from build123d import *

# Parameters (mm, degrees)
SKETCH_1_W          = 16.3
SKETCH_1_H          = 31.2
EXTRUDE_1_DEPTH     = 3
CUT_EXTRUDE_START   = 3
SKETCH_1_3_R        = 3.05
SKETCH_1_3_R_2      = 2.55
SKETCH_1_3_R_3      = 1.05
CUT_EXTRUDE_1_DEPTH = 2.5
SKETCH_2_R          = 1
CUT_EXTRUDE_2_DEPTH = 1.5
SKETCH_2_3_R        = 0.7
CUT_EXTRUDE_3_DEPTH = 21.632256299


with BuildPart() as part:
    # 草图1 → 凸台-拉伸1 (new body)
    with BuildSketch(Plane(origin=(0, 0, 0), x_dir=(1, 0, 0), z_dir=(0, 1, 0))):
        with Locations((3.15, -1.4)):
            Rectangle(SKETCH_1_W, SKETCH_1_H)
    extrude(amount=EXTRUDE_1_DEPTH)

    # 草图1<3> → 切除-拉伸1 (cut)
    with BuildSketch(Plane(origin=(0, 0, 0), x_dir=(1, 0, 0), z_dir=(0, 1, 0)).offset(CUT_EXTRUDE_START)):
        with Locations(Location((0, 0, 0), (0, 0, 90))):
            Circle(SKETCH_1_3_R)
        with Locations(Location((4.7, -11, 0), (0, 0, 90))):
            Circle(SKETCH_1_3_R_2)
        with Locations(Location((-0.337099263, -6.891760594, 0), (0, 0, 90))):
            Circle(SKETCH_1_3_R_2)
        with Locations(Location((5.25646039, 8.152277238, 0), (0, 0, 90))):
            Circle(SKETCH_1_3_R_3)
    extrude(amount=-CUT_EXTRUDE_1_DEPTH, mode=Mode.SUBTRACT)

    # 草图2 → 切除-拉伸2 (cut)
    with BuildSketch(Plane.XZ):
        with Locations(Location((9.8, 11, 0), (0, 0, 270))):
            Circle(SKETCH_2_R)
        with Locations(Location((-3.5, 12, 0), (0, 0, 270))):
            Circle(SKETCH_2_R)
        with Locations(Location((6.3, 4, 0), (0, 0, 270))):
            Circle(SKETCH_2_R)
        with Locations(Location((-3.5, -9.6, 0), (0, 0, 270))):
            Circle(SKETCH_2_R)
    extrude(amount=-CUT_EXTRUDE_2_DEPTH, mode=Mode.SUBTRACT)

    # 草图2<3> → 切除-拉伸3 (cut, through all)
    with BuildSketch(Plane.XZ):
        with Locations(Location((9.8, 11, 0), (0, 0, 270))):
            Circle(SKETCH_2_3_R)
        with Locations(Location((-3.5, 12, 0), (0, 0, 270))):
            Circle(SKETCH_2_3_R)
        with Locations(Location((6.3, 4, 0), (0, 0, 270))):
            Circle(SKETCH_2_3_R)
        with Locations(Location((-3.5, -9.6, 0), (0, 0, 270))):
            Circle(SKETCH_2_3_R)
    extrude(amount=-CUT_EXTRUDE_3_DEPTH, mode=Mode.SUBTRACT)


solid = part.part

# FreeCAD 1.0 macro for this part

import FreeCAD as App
import Part
import Sketcher

doc = App.newDocument("Part")
body = doc.addObject("PartDesign::Body", "Body")

# Sketch on XZ plane
sketch1 = body.newObject("Sketcher::SketchObject", "Sketch")
sketch1.AttachmentSupport = (doc.getObject("XZ_Plane"), [""])
sketch1.MapMode = "FlatFace"
sketch1.addGeometry([
    Part.LineSegment(App.Vector(-5, -14, 0), App.Vector(-5, 17, 0)),
    Part.LineSegment(App.Vector(-5, 17, 0), App.Vector(11, 17, 0)),
    Part.LineSegment(App.Vector(11, 17, 0), App.Vector(11, -14, 0)),
    Part.LineSegment(App.Vector(11, -14, 0), App.Vector(-5, -14, 0)),
], False)
sketch1.addConstraint([
    Sketcher.Constraint("Coincident", 0, 2, 1, 1),
    Sketcher.Constraint("Coincident", 1, 2, 2, 1),
    Sketcher.Constraint("Coincident", 2, 2, 3, 1),
    Sketcher.Constraint("Coincident", 3, 2, 0, 1),
    Sketcher.Constraint("Vertical", 0),
    Sketcher.Constraint("Horizontal", 1),
    Sketcher.Constraint("Vertical", 2),
    Sketcher.Constraint("Horizontal", 3),
    Sketcher.Constraint("DistanceX", 1, 1, 1, 2, 16.3),
    Sketcher.Constraint("DistanceY", 0, 1, 0, 2, 31.2),
    Sketcher.Constraint("DistanceX", 0, 2, -1, 1, 5.0),
    Sketcher.Constraint("DistanceY", -1, 1, 0, 2, 17.0),
])
pad1 = body.newObject("PartDesign::Pad", "Pad")
pad1.Profile = sketch1
pad1.Length = 3
pad1.Reversed = True

# Sketch on XZ plane
sketch2 = body.newObject("Sketcher::SketchObject", "Sketch001")
sketch2.AttachmentSupport = (doc.getObject("XZ_Plane"), [""])
sketch2.MapMode = "FlatFace"
sketch2.AttachmentOffset = App.Placement(App.Vector(0, 0, -3), App.Rotation())
sketch2.addGeometry([
    Part.Circle(App.Vector(0, 0, 0), App.Vector(0, 0, 1), 3),
    Part.Circle(App.Vector(4.7, 11, 0), App.Vector(0, 0, 1), 2.5),
    Part.Circle(App.Vector(-0.3, 6.9, 0), App.Vector(0, 0, 1), 2.5),
    Part.Circle(App.Vector(5.3, -8.2, 0), App.Vector(0, 0, 1), 1.1),
], False)
sketch2.addConstraint([
    Sketcher.Constraint("Coincident", 0, 3, -1, 1),
    Sketcher.Constraint("Equal", 1, 2),
    Sketcher.Constraint("Diameter", 0, 6.1),
    Sketcher.Constraint("Diameter", 1, 5.1),
    Sketcher.Constraint("Diameter", 3, 2.1),
    Sketcher.Constraint("DistanceY", -1, 1, 1, 3, 11.0),
    Sketcher.Constraint("DistanceX", -1, 1, 1, 3, 4.7),
    Sketcher.Constraint("DistanceX", 2, 3, -1, 1, 0.337099),
    Sketcher.Constraint("DistanceY", -1, 1, 2, 3, 6.891761),
    Sketcher.Constraint("DistanceX", -1, 1, 3, 3, 5.25646),
    Sketcher.Constraint("DistanceY", 3, 3, -1, 1, 8.152277),
])
pocket1 = body.newObject("PartDesign::Pocket", "Pocket")
pocket1.Profile = sketch2
pocket1.Length = 2.5
pocket1.Reversed = True

# Sketch on XZ plane
sketch3 = body.newObject("Sketcher::SketchObject", "Sketch002")
sketch3.AttachmentSupport = (doc.getObject("XZ_Plane"), [""])
sketch3.MapMode = "FlatFace"
sketch3.addGeometry([
    Part.Circle(App.Vector(9.8, 11, 0), App.Vector(0, 0, 1), 1),
    Part.Circle(App.Vector(-3.5, 12, 0), App.Vector(0, 0, 1), 1),
    Part.Circle(App.Vector(6.3, 4, 0), App.Vector(0, 0, 1), 1),
    Part.Circle(App.Vector(-3.5, -9.6, 0), App.Vector(0, 0, 1), 1),
], False)
sketch3.addConstraint([
    Sketcher.Constraint("Equal", 0, 1),
    Sketcher.Constraint("Equal", 1, 2),
    Sketcher.Constraint("Equal", 2, 3),
    Sketcher.Constraint("Vertical", 1, 3, 3, 3),
    Sketcher.Constraint("Diameter", 0, 2.0),
    Sketcher.Constraint("DistanceY", -1, 1, 0, 3, 11.0),
    Sketcher.Constraint("DistanceY", -1, 1, 1, 3, 12.0),
    Sketcher.Constraint("DistanceY", -1, 1, 2, 3, 4.0),
    Sketcher.Constraint("DistanceX", -1, 1, 0, 3, 9.8),
    Sketcher.Constraint("DistanceX", 1, 3, -1, 1, 3.5),
    Sketcher.Constraint("DistanceX", -1, 1, 2, 3, 6.3),
    Sketcher.Constraint("DistanceY", 3, 3, -1, 1, 9.6),
])
pocket2 = body.newObject("PartDesign::Pocket", "Pocket001")
pocket2.Profile = sketch3
pocket2.Length = 1.5

# Sketch on XZ plane
sketch4 = body.newObject("Sketcher::SketchObject", "Sketch003")
sketch4.AttachmentSupport = (doc.getObject("XZ_Plane"), [""])
sketch4.MapMode = "FlatFace"
sketch4.addGeometry([
    Part.Circle(App.Vector(9.8, 11, 0), App.Vector(0, 0, 1), 0.7),
    Part.Circle(App.Vector(-3.5, 12, 0), App.Vector(0, 0, 1), 0.7),
    Part.Circle(App.Vector(6.3, 4, 0), App.Vector(0, 0, 1), 0.7),
    Part.Circle(App.Vector(-3.5, -9.6, 0), App.Vector(0, 0, 1), 0.7),
], False)
sketch4.addConstraint([
    Sketcher.Constraint("Equal", 0, 1),
    Sketcher.Constraint("Equal", 1, 2),
    Sketcher.Constraint("Equal", 2, 3),
    Sketcher.Constraint("Vertical", 1, 3, 3, 3),
    Sketcher.Constraint("Diameter", 0, 1.4),
    Sketcher.Constraint("DistanceY", -1, 1, 0, 3, 11.0),
    Sketcher.Constraint("DistanceY", -1, 1, 1, 3, 12.0),
    Sketcher.Constraint("DistanceY", -1, 1, 2, 3, 4.0),
    Sketcher.Constraint("DistanceX", -1, 1, 0, 3, 9.8),
    Sketcher.Constraint("DistanceX", 1, 3, -1, 1, 3.5),
    Sketcher.Constraint("DistanceX", -1, 1, 2, 3, 6.3),
    Sketcher.Constraint("DistanceY", 3, 3, -1, 1, 9.6),
])
pocket3 = body.newObject("PartDesign::Pocket", "Pocket002")
pocket3.Profile = sketch4
pocket3.Type = "ThroughAll"

doc.recompute()
